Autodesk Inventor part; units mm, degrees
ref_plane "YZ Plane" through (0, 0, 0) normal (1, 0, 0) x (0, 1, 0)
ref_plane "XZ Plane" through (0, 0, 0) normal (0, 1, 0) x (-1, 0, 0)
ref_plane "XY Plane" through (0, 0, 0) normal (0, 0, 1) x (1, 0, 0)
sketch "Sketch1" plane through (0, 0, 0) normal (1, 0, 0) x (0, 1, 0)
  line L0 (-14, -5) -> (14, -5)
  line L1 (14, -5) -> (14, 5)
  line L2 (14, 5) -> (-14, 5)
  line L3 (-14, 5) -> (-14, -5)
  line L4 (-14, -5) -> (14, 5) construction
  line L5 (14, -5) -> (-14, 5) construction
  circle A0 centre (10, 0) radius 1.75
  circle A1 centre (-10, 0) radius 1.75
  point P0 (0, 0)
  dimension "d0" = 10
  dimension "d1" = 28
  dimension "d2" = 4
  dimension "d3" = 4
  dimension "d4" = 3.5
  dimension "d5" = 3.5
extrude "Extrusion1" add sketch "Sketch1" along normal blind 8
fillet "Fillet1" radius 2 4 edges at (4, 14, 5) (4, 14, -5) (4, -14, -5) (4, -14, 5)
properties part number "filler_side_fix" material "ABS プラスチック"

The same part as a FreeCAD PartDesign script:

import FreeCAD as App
import Part
import Sketcher

V = App.Vector


def edges_at(feature, points):
    """Names of the edges that pass closest to the given points."""
    edges = feature.Shape.Edges
    near = lambda p: min(range(len(edges)), key=lambda i: edges[i].distToShape(Part.Vertex(*p))[0])
    return sorted({f"Edge{near(p) + 1}" for p in points})

doc = App.newDocument("Part")
body = doc.addObject("PartDesign::Body", "Body")

# Sketch on YZ plane
sketch1 = body.newObject("Sketcher::SketchObject", "Sketch")
sketch1.AttachmentSupport = (doc.getObject("YZ_Plane"), [""])
sketch1.MapMode = "FlatFace"
sketch1.addGeometry(Part.LineSegment(V(-14, 5, 0), V(-14, -5, 0)), False)
sketch1.addGeometry(Part.LineSegment(V(-14, -5, 0), V(14, -5, 0)), False)
sketch1.addGeometry(Part.LineSegment(V(14, -5, 0), V(14, 5, 0)), False)
sketch1.addGeometry(Part.LineSegment(V(14, 5, 0), V(-14, 5, 0)), False)
sketch1.addGeometry(Part.Circle(V(-10, 0, 0), V(0, 0, 1), 1.75), False)
sketch1.addGeometry(Part.Circle(V(10, 0, 0), V(0, 0, 1), 1.75), False)
sketch1.addConstraint(Sketcher.Constraint("Coincident", 0, 2, 1, 1))
sketch1.addConstraint(Sketcher.Constraint("Coincident", 1, 2, 2, 1))
sketch1.addConstraint(Sketcher.Constraint("Coincident", 2, 2, 3, 1))
sketch1.addConstraint(Sketcher.Constraint("Coincident", 3, 2, 0, 1))
sketch1.addConstraint(Sketcher.Constraint("Vertical", 0))
sketch1.addConstraint(Sketcher.Constraint("Horizontal", 1))
sketch1.addConstraint(Sketcher.Constraint("Vertical", 2))
sketch1.addConstraint(Sketcher.Constraint("Horizontal", 3))
sketch1.addConstraint(Sketcher.Constraint("Equal", 4, 5))
sketch1.addConstraint(Sketcher.Constraint("Symmetric", 4, 3, 5, 3, -1, 1))
sketch1.addConstraint(Sketcher.Constraint("Symmetric", 0, 2, 2, 2, -1, 1))
sketch1.addConstraint(Sketcher.Constraint("PointOnObject", 4, 3, -1))
sketch1.addConstraint(Sketcher.Constraint("Diameter", 4, 3.5))
sketch1.addConstraint(Sketcher.Constraint("DistanceX", 1, 1, 1, 2, 28.0))
sketch1.addConstraint(Sketcher.Constraint("DistanceY", 0, 2, 0, 1, 10.0))
sketch1.addConstraint(Sketcher.Constraint("DistanceX", 4, 3, -1, 1, 10.0))
pad1 = body.newObject("PartDesign::Pad", "Pad")
pad1.Profile = sketch1
pad1.Length = 8
doc.recompute()

fillet = body.newObject("PartDesign::Fillet", "Fillet")
fillet.Base = (pad1, edges_at(pad1, [
    (4, 14, 5),
    (4, 14, -5),
    (4, -14, -5),
    (4, -14, 5),
]))
fillet.Radius = 2

doc.recompute()
